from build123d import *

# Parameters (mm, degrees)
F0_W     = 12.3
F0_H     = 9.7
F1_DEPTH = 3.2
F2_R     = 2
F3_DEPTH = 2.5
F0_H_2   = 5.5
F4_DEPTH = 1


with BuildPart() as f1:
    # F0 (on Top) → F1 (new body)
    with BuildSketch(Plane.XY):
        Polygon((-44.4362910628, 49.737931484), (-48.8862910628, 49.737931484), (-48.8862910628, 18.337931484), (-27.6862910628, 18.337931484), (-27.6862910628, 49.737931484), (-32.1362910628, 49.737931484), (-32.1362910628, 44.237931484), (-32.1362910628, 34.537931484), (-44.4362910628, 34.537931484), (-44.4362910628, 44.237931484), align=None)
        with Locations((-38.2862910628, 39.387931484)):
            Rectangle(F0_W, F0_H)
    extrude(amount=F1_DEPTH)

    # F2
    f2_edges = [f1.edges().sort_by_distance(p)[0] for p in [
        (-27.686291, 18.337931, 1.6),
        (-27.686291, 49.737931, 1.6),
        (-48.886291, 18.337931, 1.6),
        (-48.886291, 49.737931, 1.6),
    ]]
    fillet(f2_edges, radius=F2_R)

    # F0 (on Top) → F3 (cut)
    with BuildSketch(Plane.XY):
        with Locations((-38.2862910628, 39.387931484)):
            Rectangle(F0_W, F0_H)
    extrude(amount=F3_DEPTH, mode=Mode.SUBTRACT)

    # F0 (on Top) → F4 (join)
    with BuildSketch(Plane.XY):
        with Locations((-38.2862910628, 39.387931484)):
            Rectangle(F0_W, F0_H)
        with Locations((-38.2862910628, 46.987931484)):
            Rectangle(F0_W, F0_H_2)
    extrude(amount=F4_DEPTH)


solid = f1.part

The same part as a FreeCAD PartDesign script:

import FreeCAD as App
import Part
import Sketcher
Q = App.Units.Quantity


def edges_at(feature, points):
    """Names of the edges that pass closest to the given points."""
    edges = feature.Shape.Edges
    near = lambda p: min(range(len(edges)), key=lambda i: edges[i].distToShape(Part.Vertex(*p))[0])
    return sorted({f"Edge{near(p) + 1}" for p in points})

doc = App.newDocument("Part")
params = doc.addObject("Spreadsheet::Sheet", "Params")
for row, (alias, value) in enumerate([
    ("sketch1_width", "21.2 mm"),
    ("sketch1_width2", "12.3 mm"),
    ("sketch1_height", "31.4 mm"),
    ("sketch1_height2", "5.5 mm"),
    ("pad1_length", "3.2 mm"),
    ("fillet_radius", "2 mm"),
    ("sketch2_width", "12.3 mm"),
    ("sketch2_height", "9.7 mm"),
    ("pocket1_length", "2.5 mm"),
    ("sketch3_width", "12.3 mm"),
    ("sketch3_height", "15.2 mm"),
    ("pad2_length", "1 mm"),
], start=1):
    params.set(f"A{row}", alias)
    params.set(f"B{row}", "=" + value)
    params.setAlias(f"B{row}", alias)

body = doc.addObject("PartDesign::Body", "Body")

# Sketch on XY plane
sketch1 = body.newObject("Sketcher::SketchObject", "Sketch")
sketch1.AttachmentSupport = (doc.getObject("XY_Plane"), [""])
sketch1.MapMode = "FlatFace"
sketch1.addGeometry([
    Part.LineSegment(App.Vector(-44.4, 49.7, 0), App.Vector(-48.9, 49.7, 0)),  # 0
    Part.LineSegment(App.Vector(-48.9, 49.7, 0), App.Vector(-48.9, 18.3, 0)),  # 1
    Part.LineSegment(App.Vector(-48.9, 18.3, 0), App.Vector(-27.7, 18.3, 0)),  # 2
    Part.LineSegment(App.Vector(-27.7, 18.3, 0), App.Vector(-27.7, 49.7, 0)),  # 3
    Part.LineSegment(App.Vector(-27.7, 49.7, 0), App.Vector(-32.1, 49.7, 0)),  # 4
    Part.LineSegment(App.Vector(-32.1, 49.7, 0), App.Vector(-32.1, 44.2, 0)),  # 5
    Part.LineSegment(App.Vector(-32.1, 44.2, 0), App.Vector(-44.4, 44.2, 0)),  # 6
    Part.LineSegment(App.Vector(-44.4, 44.2, 0), App.Vector(-44.4, 49.7, 0)),  # 7
], False)
sketch1.addConstraint([
    Sketcher.Constraint("Coincident", 0, 2, 1, 1),
    Sketcher.Constraint("Coincident", 1, 2, 2, 1),
    Sketcher.Constraint("Coincident", 2, 2, 3, 1),
    Sketcher.Constraint("Coincident", 3, 2, 4, 1),
    Sketcher.Constraint("Coincident", 4, 2, 5, 1),
    Sketcher.Constraint("Coincident", 5, 2, 6, 1),
    Sketcher.Constraint("Coincident", 6, 2, 7, 1),
    Sketcher.Constraint("Coincident", 7, 2, 0, 1),
    Sketcher.Constraint("Horizontal", 0),
    Sketcher.Constraint("Vertical", 1),
    Sketcher.Constraint("Horizontal", 2),
    Sketcher.Constraint("Vertical", 3),
    Sketcher.Constraint("Horizontal", 4),
    Sketcher.Constraint("Vertical", 5),
    Sketcher.Constraint("Horizontal", 6),
    Sketcher.Constraint("Vertical", 7),
    Sketcher.Constraint("Horizontal", 0, 2, 3, 2),
    Sketcher.Constraint("Equal", 0, 4),
    Sketcher.Constraint("DistanceX", 2, 1, 2, 2, Q("21.2 mm")),
    Sketcher.Constraint("DistanceX", 6, 2, 6, 1, Q("12.3 mm")),
    Sketcher.Constraint("DistanceY", 1, 2, 1, 1, Q("31.4 mm")),
    Sketcher.Constraint("DistanceY", 5, 2, 5, 1, Q("5.5 mm")),
    Sketcher.Constraint("DistanceX", 0, 2, -1, 1, Q("48.886291 mm")),
    Sketcher.Constraint("DistanceY", -1, 1, 0, 2, Q("49.737931 mm")),
])
sketch1.setExpression("Constraints[18]", "Params.sketch1_width")
sketch1.setExpression("Constraints[19]", "Params.sketch1_width2")
sketch1.setExpression("Constraints[20]", "Params.sketch1_height")
sketch1.setExpression("Constraints[21]", "Params.sketch1_height2")
pad1 = body.newObject("PartDesign::Pad", "Pad")
pad1.Profile = sketch1
pad1.setExpression("Length", "Params.pad1_length")
doc.recompute()

fillet = body.newObject("PartDesign::Fillet", "Fillet")
fillet.Base = (pad1, edges_at(pad1, [
    (-27.686, 18.338, 1.6),
    (-27.686, 49.738, 1.6),
    (-48.886, 18.338, 1.6),
    (-48.886, 49.738, 1.6),
]))
fillet.setExpression("Radius", "Params.fillet_radius")

# Sketch on XY plane
sketch2 = body.newObject("Sketcher::SketchObject", "Sketch001")
sketch2.AttachmentSupport = (doc.getObject("XY_Plane"), [""])
sketch2.MapMode = "FlatFace"
sketch2.addGeometry([
    Part.LineSegment(App.Vector(-44, 44, 0), App.Vector(-44, 35, 0)),
    Part.LineSegment(App.Vector(-44, 35, 0), App.Vector(-32, 35, 0)),
    Part.LineSegment(App.Vector(-32, 35, 0), App.Vector(-32, 44, 0)),
    Part.LineSegment(App.Vector(-32, 44, 0), App.Vector(-44, 44, 0)),
], False)
sketch2.addConstraint([
    Sketcher.Constraint("Coincident", 0, 2, 1, 1),
    Sketcher.Constraint("Coincident", 1, 2, 2, 1),
    Sketcher.Constraint("Coincident", 2, 2, 3, 1),
    Sketcher.Constraint("Coincident", 3, 2, 0, 1),
    Sketcher.Constraint("Vertical", 0),
    Sketcher.Constraint("Horizontal", 1),
    Sketcher.Constraint("Vertical", 2),
    Sketcher.Constraint("Horizontal", 3),
    Sketcher.Constraint("DistanceX", 1, 1, 1, 2, Q("12.3 mm")),
    Sketcher.Constraint("DistanceY", 0, 2, 0, 1, Q("9.7 mm")),
    Sketcher.Constraint("DistanceX", 0, 2, -1, 1, Q("44.436291 mm")),
    Sketcher.Constraint("DistanceY", -1, 1, 0, 2, Q("34.537931 mm")),
])
sketch2.setExpression("Constraints[8]", "Params.sketch2_width")
sketch2.setExpression("Constraints[9]", "Params.sketch2_height")
pocket1 = body.newObject("PartDesign::Pocket", "Pocket")
pocket1.Profile = sketch2
pocket1.setExpression("Length", "Params.pocket1_length")
pocket1.Reversed = True

# Sketch on XY plane
sketch3 = body.newObject("Sketcher::SketchObject", "Sketch002")
sketch3.AttachmentSupport = (doc.getObject("XY_Plane"), [""])
sketch3.MapMode = "FlatFace"
sketch3.addGeometry([
    Part.LineSegment(App.Vector(-44, 35, 0), App.Vector(-32, 35, 0)),
    Part.LineSegment(App.Vector(-32, 35, 0), App.Vector(-32, 50, 0)),
    Part.LineSegment(App.Vector(-32, 50, 0), App.Vector(-44, 50, 0)),
    Part.LineSegment(App.Vector(-44, 50, 0), App.Vector(-44, 35, 0)),
], False)
sketch3.addConstraint([
    Sketcher.Constraint("Coincident", 0, 2, 1, 1),
    Sketcher.Constraint("Coincident", 1, 2, 2, 1),
    Sketcher.Constraint("Coincident", 2, 2, 3, 1),
    Sketcher.Constraint("Coincident", 3, 2, 0, 1),
    Sketcher.Constraint("Horizontal", 0),
    Sketcher.Constraint("Vertical", 1),
    Sketcher.Constraint("Horizontal", 2),
    Sketcher.Constraint("Vertical", 3),
    Sketcher.Constraint("DistanceX", 0, 1, 0, 2, Q("12.3 mm")),
    Sketcher.Constraint("DistanceY", 1, 1, 1, 2, Q("15.2 mm")),
    Sketcher.Constraint("DistanceX", 0, 2, -1, 1, Q("32.136291 mm")),
    Sketcher.Constraint("DistanceY", -1, 1, 0, 2, Q("34.537931 mm")),
])
sketch3.setExpression("Constraints[8]", "Params.sketch3_width")
sketch3.setExpression("Constraints[9]", "Params.sketch3_height")
pad2 = body.newObject("PartDesign::Pad", "Pad001")
pad2.Profile = sketch3
pad2.setExpression("Length", "Params.pad2_length")

doc.recompute()
